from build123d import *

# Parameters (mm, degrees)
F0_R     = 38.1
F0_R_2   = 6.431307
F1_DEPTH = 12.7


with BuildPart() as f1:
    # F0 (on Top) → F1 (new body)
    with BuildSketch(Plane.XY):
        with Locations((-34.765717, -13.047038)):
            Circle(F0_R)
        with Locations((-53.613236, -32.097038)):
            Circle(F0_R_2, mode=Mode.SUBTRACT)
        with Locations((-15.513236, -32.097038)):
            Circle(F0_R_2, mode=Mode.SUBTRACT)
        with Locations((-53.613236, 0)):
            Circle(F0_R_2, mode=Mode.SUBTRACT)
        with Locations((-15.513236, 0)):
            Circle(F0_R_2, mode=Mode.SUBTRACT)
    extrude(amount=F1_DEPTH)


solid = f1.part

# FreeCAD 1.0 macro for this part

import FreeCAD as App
import Part
import Sketcher
from FreeCAD import Vector
Q = App.Units.Quantity

doc = App.newDocument("Part")
body = doc.addObject("PartDesign::Body", "Body")

# Sketch on XY plane
sketch1 = body.newObject("Sketcher::SketchObject", "Sketch")
sketch1.AttachmentSupport = (doc.getObject("XY_Plane"), [""])
sketch1.MapMode = "FlatFace"
sketch1.addGeometry(Part.Circle(Vector(-35, -13, 0), Vector(0, 0, 1), 38), False)
sketch1.addGeometry(Part.Circle(Vector(-54, -32, 0), Vector(0, 0, 1), 6), False)
sketch1.addGeometry(Part.Circle(Vector(-16, -32, 0), Vector(0, 0, 1), 6), False)
sketch1.addGeometry(Part.Circle(Vector(-54, 0, 0), Vector(0, 0, 1), 6), False)
sketch1.addGeometry(Part.Circle(Vector(-16, 0, 0), Vector(0, 0, 1), 6), False)
sketch1.addConstraint(Sketcher.Constraint("Equal", 1, 2))
sketch1.addConstraint(Sketcher.Constraint("Equal", 2, 3))
sketch1.addConstraint(Sketcher.Constraint("Equal", 3, 4))
sketch1.addConstraint(Sketcher.Constraint("PointOnObject", 3, 3, -1))
sketch1.addConstraint(Sketcher.Constraint("PointOnObject", 4, 3, -1))
sketch1.addConstraint(Sketcher.Constraint("Horizontal", 1, 3, 2, 3))
sketch1.addConstraint(Sketcher.Constraint("Vertical", 1, 3, 3, 3))
sketch1.addConstraint(Sketcher.Constraint("Vertical", 2, 3, 4, 3))
sketch1.addConstraint(Sketcher.Constraint("Diameter", 0, Q("3 in")))
sketch1.addConstraint(Sketcher.Constraint("DistanceX", 1, 3, 2, 3, Q("1.5 in")))
sketch1.addConstraint(Sketcher.Constraint("DistanceY", 1, 3, 0, 3, Q("0.75 in")))
sketch1.addConstraint(Sketcher.Constraint("Diameter", 1, 12.862614))
sketch1.addConstraint(Sketcher.Constraint("DistanceX", 1, 3, 0, 3, 18.847519))
sketch1.addConstraint(Sketcher.Constraint("DistanceX", 0, 3, -1, 1, 34.765717))
sketch1.addConstraint(Sketcher.Constraint("DistanceY", 0, 3, -1, 1, 13.047038))
pad1 = body.newObject("PartDesign::Pad", "Pad")
pad1.Profile = sketch1
pad1.Length = Q("0.5 in")

doc.recompute()
